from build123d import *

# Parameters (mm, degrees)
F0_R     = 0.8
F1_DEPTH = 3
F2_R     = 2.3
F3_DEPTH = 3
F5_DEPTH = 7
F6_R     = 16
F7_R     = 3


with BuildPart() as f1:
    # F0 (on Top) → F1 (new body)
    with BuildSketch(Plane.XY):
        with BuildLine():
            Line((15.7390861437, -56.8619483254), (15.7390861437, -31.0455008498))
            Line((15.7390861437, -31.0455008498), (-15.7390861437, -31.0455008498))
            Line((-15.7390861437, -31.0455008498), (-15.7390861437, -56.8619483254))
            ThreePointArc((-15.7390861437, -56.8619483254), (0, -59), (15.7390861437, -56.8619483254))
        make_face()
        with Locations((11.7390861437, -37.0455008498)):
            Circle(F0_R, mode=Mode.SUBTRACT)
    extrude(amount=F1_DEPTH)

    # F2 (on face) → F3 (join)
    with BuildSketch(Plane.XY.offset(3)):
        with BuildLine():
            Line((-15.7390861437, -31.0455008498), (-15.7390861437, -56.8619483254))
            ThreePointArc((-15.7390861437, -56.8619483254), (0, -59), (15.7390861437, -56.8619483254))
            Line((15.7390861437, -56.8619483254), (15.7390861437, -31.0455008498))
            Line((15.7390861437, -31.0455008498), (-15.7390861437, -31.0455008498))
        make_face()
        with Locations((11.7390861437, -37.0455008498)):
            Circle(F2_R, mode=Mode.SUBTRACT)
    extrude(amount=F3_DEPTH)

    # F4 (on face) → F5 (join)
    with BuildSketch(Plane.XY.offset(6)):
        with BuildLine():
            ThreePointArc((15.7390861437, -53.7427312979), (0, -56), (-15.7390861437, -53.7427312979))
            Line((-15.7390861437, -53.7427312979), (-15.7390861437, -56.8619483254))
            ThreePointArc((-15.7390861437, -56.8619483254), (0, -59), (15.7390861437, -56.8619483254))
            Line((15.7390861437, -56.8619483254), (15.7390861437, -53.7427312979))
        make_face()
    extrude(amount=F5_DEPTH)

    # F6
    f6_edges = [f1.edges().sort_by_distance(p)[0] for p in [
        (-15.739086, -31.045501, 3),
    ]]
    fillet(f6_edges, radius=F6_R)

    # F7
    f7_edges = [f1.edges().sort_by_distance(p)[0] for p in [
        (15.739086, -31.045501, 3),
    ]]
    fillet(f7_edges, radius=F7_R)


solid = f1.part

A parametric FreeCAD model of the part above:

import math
import FreeCAD as App
import Part
import Sketcher
from FreeCAD import Vector
Q = App.Units.Quantity


def edges_at(feature, points):
    """Names of the edges that pass closest to the given points."""
    edges = feature.Shape.Edges
    near = lambda p: min(range(len(edges)), key=lambda i: edges[i].distToShape(Part.Vertex(*p))[0])
    return sorted({f"Edge{near(p) + 1}" for p in points})

doc = App.newDocument("Part")
body = doc.addObject("PartDesign::Body", "Body")

sketch1 = body.newObject("Sketcher::SketchObject", "Sketch")
sketch1.AttachmentSupport = (doc.getObject("XY_Plane"), [""])
sketch1.MapMode = "FlatFace"
sketch1.addGeometry([
    Part.LineSegment(Vector(15.7, -56.9, 0), Vector(15.7, -31, 0)),
    Part.LineSegment(Vector(15.7, -31, 0), Vector(-15.7, -31, 0)),
    Part.LineSegment(Vector(-15.7, -31, 0), Vector(-15.7, -56.9, 0)),
    Part.ArcOfCircle(Part.Circle(Vector(0, 0, 0), Vector(0, 0, 1), 59), math.radians(-105), math.radians(-75)),
    Part.Circle(Vector(11.7, -37, 0), Vector(0, 0, 1), 0.8),
], False)
sketch1.addConstraint([
    Sketcher.Constraint("Coincident", 0, 2, 1, 1),
    Sketcher.Constraint("Coincident", 1, 2, 2, 1),
    Sketcher.Constraint("Coincident", 2, 2, 3, 1),
    Sketcher.Constraint("Coincident", 3, 2, 0, 1),
    Sketcher.Constraint("Vertical", 0),
    Sketcher.Constraint("Horizontal", 1),
    Sketcher.Constraint("Vertical", 2),
    Sketcher.Constraint("Coincident", 3, 3, -1, 1),
    Sketcher.Constraint("Horizontal", 2, 2, 3, 2),
    Sketcher.Constraint("Radius", 3, Q("59 mm")),
    Sketcher.Constraint("Diameter", 4, Q("1.6 mm")),
    Sketcher.Constraint("DistanceX", 4, 3, 0, 2, Q("4 mm")),
    Sketcher.Constraint("DistanceY", 4, 3, 0, 2, Q("6 mm")),
    Sketcher.Constraint("DistanceY", 4, 3, -1, 1, Q("37.045501 mm")),
    Sketcher.Constraint("DistanceX", 1, 2, 1, 1, Q("31.478172 mm")),
])
pad1 = body.newObject("PartDesign::Pad", "Pad")
pad1.Profile = sketch1
pad1.Length = 3

sketch2 = body.newObject("Sketcher::SketchObject", "Sketch001")
sketch2.AttachmentSupport = (doc.getObject("XY_Plane"), [""])
sketch2.MapMode = "FlatFace"
sketch2.AttachmentOffset = App.Placement(Vector(0, 0, 3), App.Rotation())
sketch2.addGeometry([
    Part.LineSegment(Vector(-15.7, -31, 0), Vector(-15.7, -56.9, 0)),
    Part.ArcOfCircle(Part.Circle(Vector(0, 0, 0), Vector(0, 0, 1), 59), math.radians(-105), math.radians(-75)),
    Part.LineSegment(Vector(15.7, -56.9, 0), Vector(15.7, -31, 0)),
    Part.LineSegment(Vector(15.7, -31, 0), Vector(-15.7, -31, 0)),
    Part.Circle(Vector(11.7, -37, 0), Vector(0, 0, 1), 2.3),
], False)
sketch2.addConstraint([
    Sketcher.Constraint("Coincident", 0, 2, 1, 1),
    Sketcher.Constraint("Coincident", 1, 2, 2, 1),
    Sketcher.Constraint("Coincident", 2, 2, 3, 1),
    Sketcher.Constraint("Coincident", 3, 2, 0, 1),
    Sketcher.Constraint("Vertical", 0),
    Sketcher.Constraint("Vertical", 2),
    Sketcher.Constraint("Horizontal", 3),
    Sketcher.Constraint("Coincident", 1, 3, -1, 1),
    Sketcher.Constraint("Horizontal", 0, 2, 1, 2),
    Sketcher.Constraint("Radius", 1, Q("59 mm")),
    Sketcher.Constraint("Diameter", 4, Q("4.6 mm")),
    Sketcher.Constraint("DistanceX", 4, 3, 1, 2, Q("4 mm")),
    Sketcher.Constraint("DistanceY", 4, 3, 2, 2, Q("6 mm")),
    Sketcher.Constraint("DistanceY", 4, 3, -1, 1, Q("37.045501 mm")),
    Sketcher.Constraint("DistanceX", 3, 2, 3, 1, Q("31.478172 mm")),
])
pad2 = body.newObject("PartDesign::Pad", "Pad001")
pad2.Profile = sketch2
pad2.Length = 3

sketch3 = body.newObject("Sketcher::SketchObject", "Sketch002")
sketch3.AttachmentSupport = (doc.getObject("XY_Plane"), [""])
sketch3.MapMode = "FlatFace"
sketch3.AttachmentOffset = App.Placement(Vector(0, 0, 6), App.Rotation())
sketch3.addGeometry([
    Part.ArcOfCircle(Part.Circle(Vector(0, 0, 0), Vector(0, 0, 1), 56), math.radians(-106), math.radians(-74)),
    Part.LineSegment(Vector(-15.7, -53.7, 0), Vector(-15.7, -56.9, 0)),
    Part.ArcOfCircle(Part.Circle(Vector(0, 0, 0), Vector(0, 0, 1), 59), math.radians(-105), math.radians(-75)),
    Part.LineSegment(Vector(15.7, -56.9, 0), Vector(15.7, -53.7, 0)),
], False)
sketch3.addConstraint([
    Sketcher.Constraint("Coincident", 0, 1, 1, 1),
    Sketcher.Constraint("Coincident", 1, 2, 2, 1),
    Sketcher.Constraint("Coincident", 2, 2, 3, 1),
    Sketcher.Constraint("Coincident", 3, 2, 0, 2),
    Sketcher.Constraint("Vertical", 1),
    Sketcher.Constraint("Vertical", 3),
    Sketcher.Constraint("Coincident", 0, 3, -1, 1),
    Sketcher.Constraint("Coincident", 2, 3, -1, 1),
    Sketcher.Constraint("Horizontal", 1, 2, 2, 2),
    Sketcher.Constraint("Radius", 0, Q("56 mm")),
    Sketcher.Constraint("Radius", 2, Q("59 mm")),
    Sketcher.Constraint("DistanceY", 1, 2, 1, 1, Q("3.119217 mm")),
])
pad3 = body.newObject("PartDesign::Pad", "Pad002")
pad3.Profile = sketch3
pad3.Length = 7
doc.recompute()

fillet = body.newObject("PartDesign::Fillet", "Fillet")
fillet.Base = (pad3, edges_at(pad3, [(-15.739, -31.046, 3)]))
fillet.Radius = 16
doc.recompute()

fillet2 = body.newObject("PartDesign::Fillet", "Fillet001")
fillet2.Base = (fillet, edges_at(fillet, [(15.739, -31.046, 3)]))
fillet2.Radius = 3

doc.recompute()
